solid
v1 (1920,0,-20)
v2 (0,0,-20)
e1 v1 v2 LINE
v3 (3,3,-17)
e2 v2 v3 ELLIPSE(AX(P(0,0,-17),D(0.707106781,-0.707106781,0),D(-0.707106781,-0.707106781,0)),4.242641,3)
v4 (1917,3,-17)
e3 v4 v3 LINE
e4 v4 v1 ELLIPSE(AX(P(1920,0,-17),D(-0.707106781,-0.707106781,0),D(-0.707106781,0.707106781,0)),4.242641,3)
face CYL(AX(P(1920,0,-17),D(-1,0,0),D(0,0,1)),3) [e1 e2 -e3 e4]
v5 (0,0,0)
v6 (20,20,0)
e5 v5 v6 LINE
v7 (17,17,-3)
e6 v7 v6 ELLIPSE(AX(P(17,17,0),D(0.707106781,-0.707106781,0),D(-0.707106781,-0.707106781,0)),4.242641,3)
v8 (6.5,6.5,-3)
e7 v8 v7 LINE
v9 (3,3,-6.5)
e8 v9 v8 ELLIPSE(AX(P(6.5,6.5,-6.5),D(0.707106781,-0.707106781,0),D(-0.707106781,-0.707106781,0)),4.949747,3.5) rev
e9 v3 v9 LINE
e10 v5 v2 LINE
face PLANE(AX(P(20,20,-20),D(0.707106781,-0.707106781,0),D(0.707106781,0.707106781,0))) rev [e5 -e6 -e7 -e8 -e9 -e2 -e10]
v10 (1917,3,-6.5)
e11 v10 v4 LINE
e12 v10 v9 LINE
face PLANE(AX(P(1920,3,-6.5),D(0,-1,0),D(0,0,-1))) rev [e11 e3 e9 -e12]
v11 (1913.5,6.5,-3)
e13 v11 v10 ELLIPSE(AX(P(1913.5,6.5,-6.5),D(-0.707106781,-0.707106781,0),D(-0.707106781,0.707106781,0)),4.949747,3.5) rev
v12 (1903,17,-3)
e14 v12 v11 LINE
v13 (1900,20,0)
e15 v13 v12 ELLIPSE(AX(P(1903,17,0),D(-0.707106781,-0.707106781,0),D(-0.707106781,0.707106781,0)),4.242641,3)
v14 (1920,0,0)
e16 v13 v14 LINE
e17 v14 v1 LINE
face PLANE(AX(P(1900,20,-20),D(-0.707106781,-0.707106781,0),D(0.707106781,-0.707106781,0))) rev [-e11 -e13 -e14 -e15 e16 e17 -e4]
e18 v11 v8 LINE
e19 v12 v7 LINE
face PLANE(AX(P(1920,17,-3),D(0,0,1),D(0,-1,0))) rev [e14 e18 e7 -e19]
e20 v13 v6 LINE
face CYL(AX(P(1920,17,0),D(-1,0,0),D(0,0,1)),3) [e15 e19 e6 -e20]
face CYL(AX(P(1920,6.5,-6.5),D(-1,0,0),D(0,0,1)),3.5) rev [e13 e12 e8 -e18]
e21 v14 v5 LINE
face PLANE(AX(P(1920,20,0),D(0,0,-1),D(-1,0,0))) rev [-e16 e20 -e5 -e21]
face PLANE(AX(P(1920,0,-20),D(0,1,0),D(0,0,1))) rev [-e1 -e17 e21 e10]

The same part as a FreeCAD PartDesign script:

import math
import FreeCAD as App
import Part
import Sketcher
from FreeCAD import Vector
Q = App.Units.Quantity


def add_polygon(sketch, points):
    """Adds a closed chain of lines whose ends are joined by coincident constraints."""
    first, n = sketch.GeometryCount, len(points)
    for a, b in zip(points, points[1:] + points[:1]):
        sketch.addGeometry(Part.LineSegment(App.Vector(*a, 0), App.Vector(*b, 0)), False)
    for i in range(n):
        sketch.addConstraint(Sketcher.Constraint("Coincident", first + i, 2, first + (i + 1) % n, 1))

doc = App.newDocument("Part")
body = doc.addObject("PartDesign::Body", "Body")

sketch1 = body.newObject("Sketcher::SketchObject", "Sketch")
sketch1.AttachmentSupport = (doc.getObject("YZ_Plane"), [""])
sketch1.MapMode = "FlatFace"
sketch1.addGeometry([
    Part.LineSegment(Vector(20, 0, 0), Vector(0, 0, 0)),
    Part.LineSegment(Vector(0, 0, 0), Vector(0, -20, 0)),
    Part.ArcOfCircle(Part.Circle(Vector(0, -17, 0), Vector(0, 0, 1), 3), math.radians(-90), math.radians(0)),
    Part.LineSegment(Vector(3, -17, 0), Vector(3, -6.5, 0)),
    Part.ArcOfCircle(Part.Circle(Vector(6.5, -6.5, 0), Vector(0, 0, 1), 3.5), math.radians(90), math.radians(180)),
    Part.LineSegment(Vector(6.5, -3, 0), Vector(17, -3, 0)),
    Part.ArcOfCircle(Part.Circle(Vector(17, 0, 0), Vector(0, 0, 1), 3), math.radians(-90), math.radians(0)),
], False)
sketch1.addConstraint([
    Sketcher.Constraint("Coincident", 0, 2, 1, 1),
    Sketcher.Constraint("Coincident", 1, 2, 2, 1),
    Sketcher.Constraint("Tangent", 2, 2, 3, 1),
    Sketcher.Constraint("Tangent", 3, 2, 4, 2),
    Sketcher.Constraint("Tangent", 4, 1, 5, 1),
    Sketcher.Constraint("Tangent", 5, 2, 6, 1),
    Sketcher.Constraint("Coincident", 6, 2, 0, 1),
    Sketcher.Constraint("Horizontal", 0),
    Sketcher.Constraint("Vertical", 1),
    Sketcher.Constraint("Vertical", 3),
    Sketcher.Constraint("Horizontal", 5),
    Sketcher.Constraint("Coincident", 0, 2, -1, 1),
    Sketcher.Constraint("Equal", 2, 6),
    Sketcher.Constraint("PointOnObject", 2, 3, -2),
    Sketcher.Constraint("PointOnObject", 6, 3, -1),
    Sketcher.Constraint("Equal", 0, 1),
    Sketcher.Constraint("Radius", 2, Q("3 mm")),
    Sketcher.Constraint("Radius", 4, Q("3.5 mm")),
    Sketcher.Constraint("DistanceX", 0, 2, 0, 1, Q("20 mm")),
])
pad1 = body.newObject("PartDesign::Pad", "Pad")
pad1.Profile = sketch1
pad1.Length = 1920

sketch2 = body.newObject("Sketcher::SketchObject", "Sketch001")
sketch2.AttachmentSupport = (doc.getObject("XY_Plane"), [""])
sketch2.MapMode = "FlatFace"
add_polygon(sketch2, [(1920, 0), (1920, 20), (1900, 20)])
add_polygon(sketch2, [(0, 20), (0, 0), (20, 20)])
sketch2.addConstraint([
    Sketcher.Constraint("Vertical", 0),
    Sketcher.Constraint("Horizontal", 1),
    Sketcher.Constraint("Vertical", 3),
    Sketcher.Constraint("Horizontal", 5),
    Sketcher.Constraint("Coincident", 3, 2, -1, 1),
    Sketcher.Constraint("PointOnObject", 2, 2, -1),
    Sketcher.Constraint("Perpendicular", 2, 4),
    Sketcher.Constraint("Horizontal", 1, 2, 4, 2),
    Sketcher.Constraint("Equal", 1, 5),
    Sketcher.Constraint("DistanceX", 1, 2, 1, 1, Q("20 mm")),
    Sketcher.Constraint("DistanceX", -1, 1, 0, 2, Q("1920 mm")),
])
pocket1 = body.newObject("PartDesign::Pocket", "Pocket")
pocket1.Profile = sketch2
pocket1.Type = "ThroughAll"

doc.recompute()
